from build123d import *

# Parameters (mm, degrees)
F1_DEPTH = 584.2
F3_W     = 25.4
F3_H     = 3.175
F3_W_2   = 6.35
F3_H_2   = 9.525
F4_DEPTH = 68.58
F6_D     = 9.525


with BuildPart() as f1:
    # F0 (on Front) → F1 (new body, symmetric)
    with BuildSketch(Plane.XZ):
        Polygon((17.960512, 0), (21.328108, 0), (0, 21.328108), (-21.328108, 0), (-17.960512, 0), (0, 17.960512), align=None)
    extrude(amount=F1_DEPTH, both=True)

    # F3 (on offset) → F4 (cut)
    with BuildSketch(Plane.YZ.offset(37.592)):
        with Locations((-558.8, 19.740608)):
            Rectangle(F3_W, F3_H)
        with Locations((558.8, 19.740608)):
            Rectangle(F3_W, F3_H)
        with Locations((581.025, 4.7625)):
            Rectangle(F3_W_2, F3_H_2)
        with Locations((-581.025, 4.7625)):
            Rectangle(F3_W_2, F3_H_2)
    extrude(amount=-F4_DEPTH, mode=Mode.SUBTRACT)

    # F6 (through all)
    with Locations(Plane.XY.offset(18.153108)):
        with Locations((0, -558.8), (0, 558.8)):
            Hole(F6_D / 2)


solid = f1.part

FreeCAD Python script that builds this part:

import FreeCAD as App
import Part
import Sketcher
Q = App.Units.Quantity


def add_polygon(sketch, points):
    """Adds a closed chain of lines whose ends are joined by coincident constraints."""
    first, n = sketch.GeometryCount, len(points)
    for a, b in zip(points, points[1:] + points[:1]):
        sketch.addGeometry(Part.LineSegment(App.Vector(*a, 0), App.Vector(*b, 0)), False)
    for i in range(n):
        sketch.addConstraint(Sketcher.Constraint("Coincident", first + i, 2, first + (i + 1) % n, 1))

doc = App.newDocument("Part")
body = doc.addObject("PartDesign::Body", "Body")

# Sketch on XZ plane
sketch1 = doc.addObject("Sketcher::SketchObject", "Sketch")
body.addObject(sketch1)
sketch1.AttachmentSupport = (doc.XZ_Plane, [""])
sketch1.MapMode = "FlatFace"
add_polygon(sketch1, [(18, 0), (21.3, 0), (0, 21.3), (-21.3, 0), (-18, 0), (0, 18)])  # lines 0-5
sketch1.addConstraint([
    Sketcher.Constraint("Horizontal", 0),
    Sketcher.Constraint("Horizontal", 3),
    Sketcher.Constraint("Symmetric", 0, 2, 2, 2, -1, 1),
    Sketcher.Constraint("Symmetric", 3, 2, 5, 2, -2),
    Sketcher.Constraint("PointOnObject", 1, 2, -2),
    Sketcher.Constraint("PointOnObject", 4, 2, -2),
    Sketcher.Constraint("Perpendicular", 1, 2),
    Sketcher.Constraint("Parallel", 2, 4),
    Sketcher.Constraint("Distance", 4, Q("1 in")),
    Sketcher.Constraint("Distance", 1, Q("1.1875 in")),
])
pad1 = doc.addObject("PartDesign::Pad", "Pad")
body.addObject(pad1)
pad1.Profile = sketch1
pad1.Length = Q("46 in")
pad1.Midplane = True

# Sketch on YZ plane
sketch2 = doc.addObject("Sketcher::SketchObject", "Sketch001")
body.addObject(sketch2)
sketch2.AttachmentSupport = (doc.YZ_Plane, [""])
sketch2.MapMode = "FlatFace"
sketch2.AttachmentOffset = App.Placement(App.Vector(0, 0, 1.48 * 25.4), App.Rotation())
add_polygon(sketch2, [(-571.5, 21.3), (-571.5, 18.2), (-546.1, 18.2), (-546.1, 21.3)])  # lines 0-3
add_polygon(sketch2, [(546.1, 21.3), (546.1, 18.2), (571.5, 18.2), (571.5, 21.3)])  # lines 4-7
add_polygon(sketch2, [(577.9, 9.5), (577.9, 0), (584.2, 0), (584.2, 9.5)])  # lines 8-11
add_polygon(sketch2, [(-584.2, 9.5), (-584.2, 0), (-577.9, 0), (-577.9, 9.5)])  # lines 12-15
sketch2.addConstraint([
    Sketcher.Constraint("Vertical", 0),
    Sketcher.Constraint("Horizontal", 1),
    Sketcher.Constraint("Vertical", 2),
    Sketcher.Constraint("Horizontal", 3),
    Sketcher.Constraint("Vertical", 4),
    Sketcher.Constraint("Horizontal", 5),
    Sketcher.Constraint("Vertical", 6),
    Sketcher.Constraint("Horizontal", 7),
    Sketcher.Constraint("Vertical", 8),
    Sketcher.Constraint("Horizontal", 9),
    Sketcher.Constraint("Vertical", 10),
    Sketcher.Constraint("Horizontal", 11),
    Sketcher.Constraint("Vertical", 12),
    Sketcher.Constraint("Horizontal", 13),
    Sketcher.Constraint("Vertical", 14),
    Sketcher.Constraint("Horizontal", 15),
    Sketcher.Constraint("Symmetric", 9, 2, 12, 2, -1, 1),
    Sketcher.Constraint("Symmetric", 1, 2, 4, 2, -2),
    Sketcher.Constraint("Symmetric", 3, 2, 6, 2, -2),
    Sketcher.Constraint("Symmetric", 8, 2, 13, 2, -2),
    Sketcher.Constraint("Horizontal", 11, 2, 14, 2),
    Sketcher.Constraint("DistanceX", 1, 1, 1, 2, Q("1 in")),
    Sketcher.Constraint("DistanceX", -1, 1, 9, 2, Q("23 in")),
    Sketcher.Constraint("DistanceX", 1, 2, 4, 2, Q("43 in")),
    Sketcher.Constraint("DistanceX", 9, 1, 9, 2, Q("0.25 in")),
    Sketcher.Constraint("DistanceY", 0, 2, 0, 1, Q("0.125 in")),
    Sketcher.Constraint("DistanceY", 8, 2, 8, 1, Q("0.375 in")),
    Sketcher.Constraint("DistanceY", -1, 1, 2, 2, Q("21.328108 mm")),
])
pocket1 = doc.addObject("PartDesign::Pocket", "Pocket")
body.addObject(pocket1)
pocket1.Profile = sketch2
pocket1.Length = Q("2.7 in")

# Sketch on XY plane
sketch3 = doc.addObject("Sketcher::SketchObject", "Sketch002")
body.addObject(sketch3)
sketch3.AttachmentSupport = (doc.XY_Plane, [""])
sketch3.MapMode = "FlatFace"
sketch3.AttachmentOffset = App.Placement(App.Vector(0, 0, 18.153108), App.Rotation())
sketch3.addGeometry([
    Part.Circle(App.Vector(0, -558.8, 0), App.Vector(0, 0, 1), 4.8),
    Part.Circle(App.Vector(0, 558.8, 0), App.Vector(0, 0, 1), 4.8),
], False)
sketch3.addConstraint([
    Sketcher.Constraint("Equal", 0, 1),
    Sketcher.Constraint("Symmetric", 0, 3, 1, 3, -1, 1),
    Sketcher.Constraint("PointOnObject", 0, 3, -2),
    Sketcher.Constraint("Diameter", 0, Q("0.375 in")),
    Sketcher.Constraint("DistanceY", 0, 3, -1, 1, Q("22 in")),
])
doc.recompute()
hole = doc.addObject("PartDesign::Hole", "Hole")
body.addObject(hole)
hole.Profile = sketch3
hole.ThreadType = "None"
hole.Diameter = Q("0.375 in")
hole.DepthType = "ThroughAll"

doc.recompute()
